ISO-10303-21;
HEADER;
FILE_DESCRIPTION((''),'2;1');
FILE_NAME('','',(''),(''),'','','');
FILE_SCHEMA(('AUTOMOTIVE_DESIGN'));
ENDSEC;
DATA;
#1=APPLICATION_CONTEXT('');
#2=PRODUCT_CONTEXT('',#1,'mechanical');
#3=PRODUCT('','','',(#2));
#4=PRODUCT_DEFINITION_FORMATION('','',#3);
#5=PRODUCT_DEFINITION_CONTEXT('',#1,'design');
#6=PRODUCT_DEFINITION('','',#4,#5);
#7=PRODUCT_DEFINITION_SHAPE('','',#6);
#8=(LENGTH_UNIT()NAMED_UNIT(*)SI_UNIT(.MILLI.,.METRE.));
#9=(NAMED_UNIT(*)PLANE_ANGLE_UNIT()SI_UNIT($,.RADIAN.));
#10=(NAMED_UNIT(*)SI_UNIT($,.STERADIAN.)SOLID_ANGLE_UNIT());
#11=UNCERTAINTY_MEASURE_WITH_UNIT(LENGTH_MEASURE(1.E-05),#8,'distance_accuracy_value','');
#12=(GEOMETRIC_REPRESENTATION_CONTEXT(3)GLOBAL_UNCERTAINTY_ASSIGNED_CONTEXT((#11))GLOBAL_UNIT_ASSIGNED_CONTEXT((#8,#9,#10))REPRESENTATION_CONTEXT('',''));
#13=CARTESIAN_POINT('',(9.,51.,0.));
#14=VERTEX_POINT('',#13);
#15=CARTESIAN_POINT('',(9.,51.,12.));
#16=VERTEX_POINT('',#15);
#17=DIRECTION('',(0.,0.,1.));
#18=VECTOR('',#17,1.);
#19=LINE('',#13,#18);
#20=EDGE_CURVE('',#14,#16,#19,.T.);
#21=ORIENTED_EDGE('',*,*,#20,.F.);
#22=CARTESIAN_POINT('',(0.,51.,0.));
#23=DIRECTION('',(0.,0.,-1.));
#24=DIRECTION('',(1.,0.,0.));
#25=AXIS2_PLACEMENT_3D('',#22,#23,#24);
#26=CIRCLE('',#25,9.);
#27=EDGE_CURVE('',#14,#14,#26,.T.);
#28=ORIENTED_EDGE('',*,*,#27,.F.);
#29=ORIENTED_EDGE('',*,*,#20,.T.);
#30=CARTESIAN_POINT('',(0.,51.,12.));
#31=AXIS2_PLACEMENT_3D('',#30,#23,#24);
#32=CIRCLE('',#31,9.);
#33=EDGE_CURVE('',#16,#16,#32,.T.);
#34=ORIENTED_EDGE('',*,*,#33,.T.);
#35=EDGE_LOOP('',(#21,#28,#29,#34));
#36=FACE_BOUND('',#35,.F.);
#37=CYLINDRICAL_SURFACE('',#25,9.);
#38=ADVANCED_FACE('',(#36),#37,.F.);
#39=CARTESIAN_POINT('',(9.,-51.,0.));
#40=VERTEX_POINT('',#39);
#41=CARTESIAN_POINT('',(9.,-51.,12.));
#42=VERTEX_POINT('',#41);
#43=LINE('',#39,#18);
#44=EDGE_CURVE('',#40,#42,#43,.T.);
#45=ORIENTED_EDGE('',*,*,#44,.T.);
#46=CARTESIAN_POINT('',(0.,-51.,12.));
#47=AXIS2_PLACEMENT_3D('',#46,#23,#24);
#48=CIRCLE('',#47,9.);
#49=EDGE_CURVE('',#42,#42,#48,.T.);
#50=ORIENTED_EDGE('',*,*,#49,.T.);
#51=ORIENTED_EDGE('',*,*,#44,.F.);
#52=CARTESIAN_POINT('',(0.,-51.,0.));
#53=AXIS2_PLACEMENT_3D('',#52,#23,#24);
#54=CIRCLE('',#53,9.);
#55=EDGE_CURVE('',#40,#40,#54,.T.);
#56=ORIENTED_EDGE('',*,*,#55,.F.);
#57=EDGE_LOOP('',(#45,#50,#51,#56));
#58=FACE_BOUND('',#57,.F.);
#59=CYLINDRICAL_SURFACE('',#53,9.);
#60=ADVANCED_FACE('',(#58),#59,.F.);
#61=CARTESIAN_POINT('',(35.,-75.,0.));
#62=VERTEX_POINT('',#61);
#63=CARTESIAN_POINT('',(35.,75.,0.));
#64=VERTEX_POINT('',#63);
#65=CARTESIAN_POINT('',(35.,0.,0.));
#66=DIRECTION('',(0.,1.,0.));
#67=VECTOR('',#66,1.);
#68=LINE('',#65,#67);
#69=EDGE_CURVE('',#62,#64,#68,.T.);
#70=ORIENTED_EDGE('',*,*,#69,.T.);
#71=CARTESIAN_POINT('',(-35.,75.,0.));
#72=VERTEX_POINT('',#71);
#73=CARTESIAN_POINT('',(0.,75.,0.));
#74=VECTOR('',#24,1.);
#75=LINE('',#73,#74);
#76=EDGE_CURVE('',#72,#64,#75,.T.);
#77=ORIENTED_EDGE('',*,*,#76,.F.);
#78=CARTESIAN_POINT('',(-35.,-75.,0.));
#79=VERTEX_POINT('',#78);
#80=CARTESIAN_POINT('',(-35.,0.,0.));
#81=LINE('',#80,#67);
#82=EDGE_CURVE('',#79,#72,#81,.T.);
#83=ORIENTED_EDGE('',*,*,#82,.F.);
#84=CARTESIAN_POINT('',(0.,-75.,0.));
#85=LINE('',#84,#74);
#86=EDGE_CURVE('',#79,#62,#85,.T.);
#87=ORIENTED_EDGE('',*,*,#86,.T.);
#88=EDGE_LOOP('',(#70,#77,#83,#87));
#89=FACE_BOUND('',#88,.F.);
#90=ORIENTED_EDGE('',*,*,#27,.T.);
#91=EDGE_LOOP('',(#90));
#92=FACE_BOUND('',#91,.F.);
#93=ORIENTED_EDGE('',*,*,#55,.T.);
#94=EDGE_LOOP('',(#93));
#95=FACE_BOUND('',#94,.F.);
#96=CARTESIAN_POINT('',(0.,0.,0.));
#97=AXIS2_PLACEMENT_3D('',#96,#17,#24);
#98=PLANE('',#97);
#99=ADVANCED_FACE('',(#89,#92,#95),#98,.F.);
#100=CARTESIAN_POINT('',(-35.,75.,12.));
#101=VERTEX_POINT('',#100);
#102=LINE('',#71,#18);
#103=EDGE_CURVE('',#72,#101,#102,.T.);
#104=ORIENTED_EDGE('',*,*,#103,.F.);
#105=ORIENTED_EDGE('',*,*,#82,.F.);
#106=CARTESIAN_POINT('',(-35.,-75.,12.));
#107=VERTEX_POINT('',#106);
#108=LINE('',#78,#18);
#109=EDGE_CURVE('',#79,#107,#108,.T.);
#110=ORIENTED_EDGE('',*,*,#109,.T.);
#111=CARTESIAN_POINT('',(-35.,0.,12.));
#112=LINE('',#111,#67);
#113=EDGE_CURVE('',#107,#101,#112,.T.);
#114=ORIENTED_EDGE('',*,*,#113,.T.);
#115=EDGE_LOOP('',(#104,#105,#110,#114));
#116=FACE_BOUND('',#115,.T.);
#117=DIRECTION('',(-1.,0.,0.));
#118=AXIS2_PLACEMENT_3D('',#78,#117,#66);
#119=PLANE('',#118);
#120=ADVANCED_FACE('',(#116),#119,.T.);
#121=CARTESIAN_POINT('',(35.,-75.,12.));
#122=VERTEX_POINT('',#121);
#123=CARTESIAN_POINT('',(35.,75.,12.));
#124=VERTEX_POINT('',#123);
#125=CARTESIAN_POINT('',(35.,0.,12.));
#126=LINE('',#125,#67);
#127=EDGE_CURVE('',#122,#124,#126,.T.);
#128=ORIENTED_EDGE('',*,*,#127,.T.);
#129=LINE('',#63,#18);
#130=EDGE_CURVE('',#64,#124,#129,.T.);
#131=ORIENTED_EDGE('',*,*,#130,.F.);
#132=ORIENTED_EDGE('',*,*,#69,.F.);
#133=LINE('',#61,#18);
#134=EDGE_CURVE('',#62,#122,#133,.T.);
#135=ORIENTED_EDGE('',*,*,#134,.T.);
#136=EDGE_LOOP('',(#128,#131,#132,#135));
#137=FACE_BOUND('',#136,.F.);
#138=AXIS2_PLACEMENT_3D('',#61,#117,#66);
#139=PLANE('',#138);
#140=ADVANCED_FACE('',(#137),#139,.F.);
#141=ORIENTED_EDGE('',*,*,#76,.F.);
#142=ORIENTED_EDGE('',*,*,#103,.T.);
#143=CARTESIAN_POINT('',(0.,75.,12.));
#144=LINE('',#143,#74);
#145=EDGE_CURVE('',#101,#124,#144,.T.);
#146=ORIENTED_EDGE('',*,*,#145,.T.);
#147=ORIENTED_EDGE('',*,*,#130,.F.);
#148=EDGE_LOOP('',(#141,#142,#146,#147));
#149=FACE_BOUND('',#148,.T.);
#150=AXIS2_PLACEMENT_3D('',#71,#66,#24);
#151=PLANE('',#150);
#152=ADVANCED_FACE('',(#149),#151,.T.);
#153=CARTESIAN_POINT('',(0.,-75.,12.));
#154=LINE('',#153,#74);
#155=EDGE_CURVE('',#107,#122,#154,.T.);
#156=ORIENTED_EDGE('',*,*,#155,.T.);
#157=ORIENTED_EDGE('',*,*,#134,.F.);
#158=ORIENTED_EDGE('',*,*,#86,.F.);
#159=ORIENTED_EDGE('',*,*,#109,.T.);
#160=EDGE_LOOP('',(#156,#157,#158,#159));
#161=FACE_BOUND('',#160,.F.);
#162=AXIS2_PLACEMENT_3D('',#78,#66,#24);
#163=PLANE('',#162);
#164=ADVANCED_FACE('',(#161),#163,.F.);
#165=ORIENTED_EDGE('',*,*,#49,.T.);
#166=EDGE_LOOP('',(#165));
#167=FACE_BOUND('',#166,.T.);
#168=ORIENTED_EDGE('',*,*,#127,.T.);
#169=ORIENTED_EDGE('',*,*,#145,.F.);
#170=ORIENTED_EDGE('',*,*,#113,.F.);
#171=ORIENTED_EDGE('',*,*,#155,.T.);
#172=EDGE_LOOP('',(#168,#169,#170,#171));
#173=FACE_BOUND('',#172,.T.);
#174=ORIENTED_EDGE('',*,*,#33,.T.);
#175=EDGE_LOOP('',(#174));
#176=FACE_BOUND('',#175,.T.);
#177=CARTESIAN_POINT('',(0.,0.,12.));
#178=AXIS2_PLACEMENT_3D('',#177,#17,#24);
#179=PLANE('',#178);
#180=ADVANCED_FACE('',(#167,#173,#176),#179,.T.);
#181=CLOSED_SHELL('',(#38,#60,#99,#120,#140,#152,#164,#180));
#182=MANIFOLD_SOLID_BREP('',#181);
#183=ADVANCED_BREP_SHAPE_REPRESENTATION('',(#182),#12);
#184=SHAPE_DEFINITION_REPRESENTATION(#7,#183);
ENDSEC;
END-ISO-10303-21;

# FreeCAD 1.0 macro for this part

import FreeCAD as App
import Part
import Sketcher
from FreeCAD import Vector
Q = App.Units.Quantity

doc = App.newDocument("Part")
body = doc.addObject("PartDesign::Body", "Body")

# Sketch on XY plane
sketch1 = body.newObject("Sketcher::SketchObject", "Sketch")
sketch1.AttachmentSupport = (doc.getObject("XY_Plane"), [""])
sketch1.MapMode = "FlatFace"
sketch1.addGeometry([
    Part.LineSegment(Vector(-35, 75, 0), Vector(-35, -75, 0)),
    Part.LineSegment(Vector(-35, -75, 0), Vector(35, -75, 0)),
    Part.LineSegment(Vector(35, -75, 0), Vector(35, 75, 0)),
    Part.LineSegment(Vector(35, 75, 0), Vector(-35, 75, 0)),
], False)
sketch1.addConstraint([
    Sketcher.Constraint("Coincident", 0, 2, 1, 1),
    Sketcher.Constraint("Coincident", 1, 2, 2, 1),
    Sketcher.Constraint("Coincident", 2, 2, 3, 1),
    Sketcher.Constraint("Coincident", 3, 2, 0, 1),
    Sketcher.Constraint("Vertical", 0),
    Sketcher.Constraint("Horizontal", 1),
    Sketcher.Constraint("Vertical", 2),
    Sketcher.Constraint("Horizontal", 3),
    Sketcher.Constraint("Symmetric", 0, 2, 2, 2, -1, 1),
    Sketcher.Constraint("DistanceX", 1, 1, 1, 2, Q("70 mm")),
    Sketcher.Constraint("DistanceY", 0, 2, 0, 1, Q("150 mm")),
])
pad1 = body.newObject("PartDesign::Pad", "Pad")
pad1.Profile = sketch1
pad1.Length = 12

# Sketch on XY plane
sketch2 = body.newObject("Sketcher::SketchObject", "Sketch001")
sketch2.AttachmentSupport = (doc.getObject("XY_Plane"), [""])
sketch2.MapMode = "FlatFace"
sketch2.addGeometry([
    Part.Circle(Vector(0, -51, 0), Vector(0, 0, 1), 9),
    Part.Circle(Vector(0, 51, 0), Vector(0, 0, 1), 9),
], False)
sketch2.addConstraint([
    Sketcher.Constraint("Equal", 0, 1),
    Sketcher.Constraint("Symmetric", 0, 3, 1, 3, -1, 1),
    Sketcher.Constraint("PointOnObject", 0, 3, -2),
    Sketcher.Constraint("Diameter", 0, Q("18 mm")),
    Sketcher.Constraint("DistanceY", 0, 3, -1, 1, Q("51 mm")),
])
pocket1 = body.newObject("PartDesign::Pocket", "Pocket")
pocket1.Profile = sketch2
pocket1.Length = 25
pocket1.Reversed = True

doc.recompute()
